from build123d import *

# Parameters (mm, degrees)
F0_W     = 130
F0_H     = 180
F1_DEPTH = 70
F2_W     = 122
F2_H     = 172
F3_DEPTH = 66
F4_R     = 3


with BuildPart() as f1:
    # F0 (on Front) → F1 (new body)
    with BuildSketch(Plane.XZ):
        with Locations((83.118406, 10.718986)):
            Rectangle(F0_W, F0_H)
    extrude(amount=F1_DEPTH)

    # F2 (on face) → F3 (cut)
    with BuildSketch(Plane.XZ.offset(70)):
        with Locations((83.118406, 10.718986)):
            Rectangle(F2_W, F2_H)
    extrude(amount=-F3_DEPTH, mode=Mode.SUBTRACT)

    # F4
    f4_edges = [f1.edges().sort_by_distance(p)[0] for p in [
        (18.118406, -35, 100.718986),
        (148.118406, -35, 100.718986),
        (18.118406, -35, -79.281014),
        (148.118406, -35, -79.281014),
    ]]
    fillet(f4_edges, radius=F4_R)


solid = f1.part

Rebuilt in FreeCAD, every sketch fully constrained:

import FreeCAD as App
import Part
import Sketcher

V = App.Vector


def edges_at(feature, points):
    """Names of the edges that pass closest to the given points."""
    edges = feature.Shape.Edges
    near = lambda p: min(range(len(edges)), key=lambda i: edges[i].distToShape(Part.Vertex(*p))[0])
    return sorted({f"Edge{near(p) + 1}" for p in points})

doc = App.newDocument("Part")
params = doc.addObject("Spreadsheet::Sheet", "Params")
for row, (alias, value) in enumerate([
    ("sketch1_width", "130 mm"),
    ("sketch1_height", "180 mm"),
    ("pad1_length", "70 mm"),
    ("sketch2_width", "122 mm"),
    ("sketch2_height", "172 mm"),
    ("pocket1_length", "66 mm"),
    ("fillet_radius", "3 mm"),
], start=1):
    params.set(f"A{row}", alias)
    params.set(f"B{row}", "=" + value)
    params.setAlias(f"B{row}", alias)

body = doc.addObject("PartDesign::Body", "Body")

# Sketch on XZ plane
sketch1 = body.newObject("Sketcher::SketchObject", "Sketch")
sketch1.AttachmentSupport = (doc.getObject("XZ_Plane"), [""])
sketch1.MapMode = "FlatFace"
sketch1.addGeometry(Part.LineSegment(V(18, 101, 0), V(18, -79, 0)), False)
sketch1.addGeometry(Part.LineSegment(V(18, -79, 0), V(148, -79, 0)), False)
sketch1.addGeometry(Part.LineSegment(V(148, -79, 0), V(148, 101, 0)), False)
sketch1.addGeometry(Part.LineSegment(V(148, 101, 0), V(18, 101, 0)), False)
sketch1.addConstraint(Sketcher.Constraint("Coincident", 0, 2, 1, 1))
sketch1.addConstraint(Sketcher.Constraint("Coincident", 1, 2, 2, 1))
sketch1.addConstraint(Sketcher.Constraint("Coincident", 2, 2, 3, 1))
sketch1.addConstraint(Sketcher.Constraint("Coincident", 3, 2, 0, 1))
sketch1.addConstraint(Sketcher.Constraint("Vertical", 0))
sketch1.addConstraint(Sketcher.Constraint("Horizontal", 1))
sketch1.addConstraint(Sketcher.Constraint("Vertical", 2))
sketch1.addConstraint(Sketcher.Constraint("Horizontal", 3))
sketch1.addConstraint(Sketcher.Constraint("DistanceX", 1, 1, 1, 2, 130.0))
sketch1.addConstraint(Sketcher.Constraint("DistanceY", 0, 2, 0, 1, 180.0))
sketch1.addConstraint(Sketcher.Constraint("DistanceX", -1, 1, 0, 2, 18.118406))
sketch1.addConstraint(Sketcher.Constraint("DistanceY", 0, 2, -1, 1, 79.281014))
sketch1.setExpression("Constraints[8]", "Params.sketch1_width")
sketch1.setExpression("Constraints[9]", "Params.sketch1_height")
pad1 = body.newObject("PartDesign::Pad", "Pad")
pad1.Profile = sketch1
pad1.setExpression("Length", "Params.pad1_length")

# Sketch on XZ plane
sketch2 = body.newObject("Sketcher::SketchObject", "Sketch001")
sketch2.AttachmentSupport = (doc.getObject("XZ_Plane"), [""])
sketch2.MapMode = "FlatFace"
sketch2.AttachmentOffset = App.Placement(V(0, 0, 70), App.Rotation())
sketch2.addGeometry(Part.LineSegment(V(22, 97, 0), V(22, -75, 0)), False)
sketch2.addGeometry(Part.LineSegment(V(22, -75, 0), V(144, -75, 0)), False)
sketch2.addGeometry(Part.LineSegment(V(144, -75, 0), V(144, 97, 0)), False)
sketch2.addGeometry(Part.LineSegment(V(144, 97, 0), V(22, 97, 0)), False)
sketch2.addConstraint(Sketcher.Constraint("Coincident", 0, 2, 1, 1))
sketch2.addConstraint(Sketcher.Constraint("Coincident", 1, 2, 2, 1))
sketch2.addConstraint(Sketcher.Constraint("Coincident", 2, 2, 3, 1))
sketch2.addConstraint(Sketcher.Constraint("Coincident", 3, 2, 0, 1))
sketch2.addConstraint(Sketcher.Constraint("Vertical", 0))
sketch2.addConstraint(Sketcher.Constraint("Horizontal", 1))
sketch2.addConstraint(Sketcher.Constraint("Vertical", 2))
sketch2.addConstraint(Sketcher.Constraint("Horizontal", 3))
sketch2.addConstraint(Sketcher.Constraint("DistanceX", 1, 1, 1, 2, 122.0))
sketch2.addConstraint(Sketcher.Constraint("DistanceY", 0, 2, 0, 1, 172.0))
sketch2.addConstraint(Sketcher.Constraint("DistanceX", -1, 1, 0, 2, 22.118406))
sketch2.addConstraint(Sketcher.Constraint("DistanceY", 0, 2, -1, 1, 75.281014))
sketch2.setExpression("Constraints[8]", "Params.sketch2_width")
sketch2.setExpression("Constraints[9]", "Params.sketch2_height")
pocket1 = body.newObject("PartDesign::Pocket", "Pocket")
pocket1.Profile = sketch2
pocket1.setExpression("Length", "Params.pocket1_length")
doc.recompute()

fillet = body.newObject("PartDesign::Fillet", "Fillet")
fillet.Base = (pocket1, edges_at(pocket1, [
    (18.118, -35, 100.719),
    (148.118, -35, 100.719),
    (18.118, -35, -79.281),
    (148.118, -35, -79.281),
]))
fillet.setExpression("Radius", "Params.fillet_radius")

doc.recompute()
